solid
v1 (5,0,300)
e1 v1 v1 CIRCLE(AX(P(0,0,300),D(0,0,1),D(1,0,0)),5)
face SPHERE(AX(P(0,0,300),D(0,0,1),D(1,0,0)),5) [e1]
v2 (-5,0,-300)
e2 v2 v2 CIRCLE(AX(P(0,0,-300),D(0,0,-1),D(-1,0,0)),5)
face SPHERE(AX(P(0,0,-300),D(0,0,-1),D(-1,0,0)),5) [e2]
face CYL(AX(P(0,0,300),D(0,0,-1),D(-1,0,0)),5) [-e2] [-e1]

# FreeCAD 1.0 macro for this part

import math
import FreeCAD as App
import Part
import Sketcher

V = App.Vector

doc = App.newDocument("Part")
body = doc.addObject("PartDesign::Body", "Body")

# Sketch on XY plane
sketch1 = body.newObject("Sketcher::SketchObject", "Sketch")
sketch1.AttachmentSupport = (doc.getObject("XY_Plane"), [""])
sketch1.MapMode = "FlatFace"
sketch1.addGeometry(Part.Circle(V(0, 0, 0), V(0, 0, 1), 5), False)
sketch1.addConstraint([
    Sketcher.Constraint("Coincident", 0, 3, -1, 1),
    Sketcher.Constraint("Diameter", 0, 10.0),
])
pad1 = body.newObject("PartDesign::Pad", "Pad")
pad1.Profile = sketch1
pad1.Length = 300

# Sketch on XY plane
sketch2 = body.newObject("Sketcher::SketchObject", "Sketch001")
sketch2.AttachmentSupport = (doc.getObject("XY_Plane"), [""])
sketch2.MapMode = "FlatFace"
sketch2.AttachmentOffset = App.Placement(V(0, 0, 300), App.Rotation())
sketch2.addGeometry([
    Part.LineSegment(V(0, -5, 0), V(0, 5, 0)),
    Part.ArcOfCircle(Part.Circle(V(0, 0, 0), V(0, 0, 1), 5), math.radians(90), math.radians(270)),
], False)
sketch2.addConstraint([
    Sketcher.Constraint("Coincident", 0, 1, 1, 2),
    Sketcher.Constraint("Coincident", 1, 1, 0, 2),
    Sketcher.Constraint("Vertical", 0),
    Sketcher.Constraint("Coincident", 1, 3, -1, 1),
    Sketcher.Constraint("PointOnObject", 0, 1, -2),
    Sketcher.Constraint("Radius", 1, 5.0),
])
revolution = body.newObject("PartDesign::Revolution", "Revolution")
revolution.Profile = sketch2
revolution.ReferenceAxis = (sketch2, ["V_Axis"])
revolution.Angle = 180
doc.recompute()

mirrored = body.newObject("PartDesign::Mirrored", "Mirrored")
mirrored.Originals = [pad1, revolution]
mirrored.MirrorPlane = (doc.getObject("XY_Plane"), [""])
body.Tip = mirrored

doc.recompute()
